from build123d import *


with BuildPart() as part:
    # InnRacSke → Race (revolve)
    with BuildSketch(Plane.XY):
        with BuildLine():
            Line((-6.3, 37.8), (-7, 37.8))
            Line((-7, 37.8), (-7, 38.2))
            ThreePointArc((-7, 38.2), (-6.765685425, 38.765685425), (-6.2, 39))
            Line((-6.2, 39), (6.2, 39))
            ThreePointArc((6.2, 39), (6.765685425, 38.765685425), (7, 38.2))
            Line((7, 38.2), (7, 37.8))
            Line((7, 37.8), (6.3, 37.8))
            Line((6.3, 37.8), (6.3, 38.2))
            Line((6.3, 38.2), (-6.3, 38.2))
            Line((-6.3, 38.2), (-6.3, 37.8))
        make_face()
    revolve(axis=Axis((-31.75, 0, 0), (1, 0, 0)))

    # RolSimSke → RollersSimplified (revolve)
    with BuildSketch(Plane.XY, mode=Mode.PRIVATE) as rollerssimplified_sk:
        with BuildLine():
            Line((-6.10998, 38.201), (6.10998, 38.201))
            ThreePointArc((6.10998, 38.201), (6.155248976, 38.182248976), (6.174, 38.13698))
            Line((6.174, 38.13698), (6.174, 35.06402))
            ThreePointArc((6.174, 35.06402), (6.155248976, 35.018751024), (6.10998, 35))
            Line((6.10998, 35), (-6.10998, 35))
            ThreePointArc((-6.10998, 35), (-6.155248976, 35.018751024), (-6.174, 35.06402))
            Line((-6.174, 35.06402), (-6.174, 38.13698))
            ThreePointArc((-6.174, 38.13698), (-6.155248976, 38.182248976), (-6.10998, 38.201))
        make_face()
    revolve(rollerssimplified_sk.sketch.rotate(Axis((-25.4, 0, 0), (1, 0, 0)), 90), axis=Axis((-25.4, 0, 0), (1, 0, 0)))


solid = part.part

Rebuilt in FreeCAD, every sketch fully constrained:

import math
import FreeCAD as App
import Part
import Sketcher
from FreeCAD import Vector
Q = App.Units.Quantity

doc = App.newDocument("Part")
params = doc.addObject("Spreadsheet::Sheet", "Params")
for row, (alias, value) in enumerate([
    ("sketch1_radius", "0.8 mm"),
    ("sketch1_width", "0.7 mm"),
    ("sketch1_width2", "12.6 mm"),
    ("sketch1_height", "0.4 mm"),
    ("revolution_angle", "360 deg"),
    ("revolution2_angle", "360 deg"),
], start=1):
    params.set(f"A{row}", alias)
    params.set(f"B{row}", "=" + value)
    params.setAlias(f"B{row}", alias)

body = doc.addObject("PartDesign::Body", "Body")

sketch1 = body.newObject("Sketcher::SketchObject", "Sketch")
sketch1.AttachmentSupport = (doc.getObject("XY_Plane"), [""])
sketch1.MapMode = "FlatFace"
sketch1.addGeometry(Part.LineSegment(Vector(-7, 37.8, 0), Vector(-6.3, 37.8, 0)), False)
sketch1.addGeometry(Part.LineSegment(Vector(-6.3, 37.8, 0), Vector(-6.3, 38.2, 0)), False)
sketch1.addGeometry(Part.LineSegment(Vector(-6.3, 38.2, 0), Vector(6.3, 38.2, 0)), False)
sketch1.addGeometry(Part.LineSegment(Vector(6.3, 38.2, 0), Vector(6.3, 37.8, 0)), False)
sketch1.addGeometry(Part.LineSegment(Vector(6.3, 37.8, 0), Vector(7, 37.8, 0)), False)
sketch1.addGeometry(Part.LineSegment(Vector(7, 37.8, 0), Vector(7, 38.2, 0)), False)
sketch1.addGeometry(Part.ArcOfCircle(Part.Circle(Vector(6.2, 38.2, 0), Vector(0, 0, 1), 0.8), math.radians(0), math.radians(90)), False)
sketch1.addGeometry(Part.LineSegment(Vector(6.2, 39, 0), Vector(-6.2, 39, 0)), False)
sketch1.addGeometry(Part.ArcOfCircle(Part.Circle(Vector(-6.2, 38.2, 0), Vector(0, 0, 1), 0.8), math.radians(90), math.radians(180)), False)
sketch1.addGeometry(Part.LineSegment(Vector(-7, 38.2, 0), Vector(-7, 37.8, 0)), False)
sketch1.addConstraint(Sketcher.Constraint("Coincident", 0, 2, 1, 1))
sketch1.addConstraint(Sketcher.Constraint("Coincident", 1, 2, 2, 1))
sketch1.addConstraint(Sketcher.Constraint("Coincident", 2, 2, 3, 1))
sketch1.addConstraint(Sketcher.Constraint("Coincident", 3, 2, 4, 1))
sketch1.addConstraint(Sketcher.Constraint("Coincident", 4, 2, 5, 1))
sketch1.addConstraint(Sketcher.Constraint("Tangent", 5, 2, 6, 1))
sketch1.addConstraint(Sketcher.Constraint("Tangent", 6, 2, 7, 1))
sketch1.addConstraint(Sketcher.Constraint("Tangent", 7, 2, 8, 1))
sketch1.addConstraint(Sketcher.Constraint("Tangent", 8, 2, 9, 1))
sketch1.addConstraint(Sketcher.Constraint("Coincident", 9, 2, 0, 1))
sketch1.addConstraint(Sketcher.Constraint("Horizontal", 0))
sketch1.addConstraint(Sketcher.Constraint("Vertical", 1))
sketch1.addConstraint(Sketcher.Constraint("Horizontal", 2))
sketch1.addConstraint(Sketcher.Constraint("Vertical", 3))
sketch1.addConstraint(Sketcher.Constraint("Horizontal", 4))
sketch1.addConstraint(Sketcher.Constraint("Vertical", 5))
sketch1.addConstraint(Sketcher.Constraint("Horizontal", 7))
sketch1.addConstraint(Sketcher.Constraint("Vertical", 9))
sketch1.addConstraint(Sketcher.Constraint("Equal", 6, 8))
sketch1.addConstraint(Sketcher.Constraint("Symmetric", 0, 2, 3, 2, -2))
sketch1.addConstraint(Sketcher.Constraint("Horizontal", 8, 3, 1, 2))
sketch1.addConstraint(Sketcher.Constraint("Equal", 0, 4))
sketch1.addConstraint(Sketcher.Constraint("Radius", 6, Q("0.8 mm")))
sketch1.addConstraint(Sketcher.Constraint("DistanceX", 0, 1, 0, 2, Q("0.7 mm")))
sketch1.addConstraint(Sketcher.Constraint("DistanceX", 2, 1, 2, 2, Q("12.6 mm")))
sketch1.addConstraint(Sketcher.Constraint("DistanceY", 1, 1, 1, 2, Q("0.4 mm")))
sketch1.addConstraint(Sketcher.Constraint("DistanceY", -1, 1, 6, 2, Q("39 mm")))
sketch1.setExpression("Constraints[22]", "Params.sketch1_radius")
sketch1.setExpression("Constraints[23]", "Params.sketch1_width")
sketch1.setExpression("Constraints[24]", "Params.sketch1_width2")
sketch1.setExpression("Constraints[25]", "Params.sketch1_height")
revolution = body.newObject("PartDesign::Revolution", "Revolution")
revolution.Profile = sketch1
revolution.ReferenceAxis = (sketch1, ["H_Axis"])
revolution.setExpression("Angle", "Params.revolution_angle")

sketch2 = body.newObject("Sketcher::SketchObject", "Sketch001")
sketch2.AttachmentSupport = (doc.getObject("XY_Plane"), [""])
sketch2.MapMode = "FlatFace"
sketch2.addGeometry(Part.LineSegment(Vector(6.10998, 38.201, 0), Vector(-6.10998, 38.201, 0)), False)
sketch2.addGeometry(Part.ArcOfCircle(Part.Circle(Vector(-6.10998, 38.13698, 0), Vector(0, 0, 1), 0.06402), math.radians(90), math.radians(180)), False)
sketch2.addGeometry(Part.LineSegment(Vector(-6.174, 38.13698, 0), Vector(-6.174, 35.06402, 0)), False)
sketch2.addGeometry(Part.ArcOfCircle(Part.Circle(Vector(-6.10998, 35.06402, 0), Vector(0, 0, 1), 0.06402), math.radians(180), math.radians(270)), False)
sketch2.addGeometry(Part.LineSegment(Vector(-6.10998, 35, 0), Vector(6.10998, 35, 0)), False)
sketch2.addGeometry(Part.ArcOfCircle(Part.Circle(Vector(6.10998, 35.06402, 0), Vector(0, 0, 1), 0.06402), math.radians(-90), math.radians(0)), False)
sketch2.addGeometry(Part.LineSegment(Vector(6.174, 35.06402, 0), Vector(6.174, 38.13698, 0)), False)
sketch2.addGeometry(Part.ArcOfCircle(Part.Circle(Vector(6.10998, 38.13698, 0), Vector(0, 0, 1), 0.06402), math.radians(0), math.radians(90)), False)
sketch2.addConstraint(Sketcher.Constraint("Tangent", 0, 2, 1, 1))
sketch2.addConstraint(Sketcher.Constraint("Tangent", 1, 2, 2, 1))
sketch2.addConstraint(Sketcher.Constraint("Tangent", 2, 2, 3, 1))
sketch2.addConstraint(Sketcher.Constraint("Tangent", 3, 2, 4, 1))
sketch2.addConstraint(Sketcher.Constraint("Tangent", 4, 2, 5, 1))
sketch2.addConstraint(Sketcher.Constraint("Tangent", 5, 2, 6, 1))
sketch2.addConstraint(Sketcher.Constraint("Tangent", 6, 2, 7, 1))
sketch2.addConstraint(Sketcher.Constraint("Tangent", 7, 2, 0, 1))
sketch2.addConstraint(Sketcher.Constraint("Horizontal", 0))
sketch2.addConstraint(Sketcher.Constraint("Vertical", 2))
sketch2.addConstraint(Sketcher.Constraint("Horizontal", 4))
sketch2.addConstraint(Sketcher.Constraint("Vertical", 6))
sketch2.addConstraint(Sketcher.Constraint("Equal", 1, 3))
sketch2.addConstraint(Sketcher.Constraint("Equal", 3, 5))
sketch2.addConstraint(Sketcher.Constraint("Equal", 5, 7))
sketch2.addConstraint(Sketcher.Constraint("DistanceY", -1, 1, 3, 2, Q("35 mm")))
sketch2.addConstraint(Sketcher.Constraint("Radius", 1, Q("0.06402 mm")))
sketch2.addConstraint(Sketcher.Constraint("DistanceY", -1, 1, 0, 2, Q("38.201 mm")))
sketch2.addConstraint(Sketcher.Constraint("DistanceX", 1, 2, -1, 1, Q("6.174 mm")))
sketch2.addConstraint(Sketcher.Constraint("DistanceX", -1, 1, 5, 2, Q("6.174 mm")))
revolution2 = body.newObject("PartDesign::Revolution", "Revolution001")
revolution2.Profile = sketch2
revolution2.ReferenceAxis = (sketch2, ["H_Axis"])
revolution2.setExpression("Angle", "Params.revolution2_angle")

doc.recompute()
